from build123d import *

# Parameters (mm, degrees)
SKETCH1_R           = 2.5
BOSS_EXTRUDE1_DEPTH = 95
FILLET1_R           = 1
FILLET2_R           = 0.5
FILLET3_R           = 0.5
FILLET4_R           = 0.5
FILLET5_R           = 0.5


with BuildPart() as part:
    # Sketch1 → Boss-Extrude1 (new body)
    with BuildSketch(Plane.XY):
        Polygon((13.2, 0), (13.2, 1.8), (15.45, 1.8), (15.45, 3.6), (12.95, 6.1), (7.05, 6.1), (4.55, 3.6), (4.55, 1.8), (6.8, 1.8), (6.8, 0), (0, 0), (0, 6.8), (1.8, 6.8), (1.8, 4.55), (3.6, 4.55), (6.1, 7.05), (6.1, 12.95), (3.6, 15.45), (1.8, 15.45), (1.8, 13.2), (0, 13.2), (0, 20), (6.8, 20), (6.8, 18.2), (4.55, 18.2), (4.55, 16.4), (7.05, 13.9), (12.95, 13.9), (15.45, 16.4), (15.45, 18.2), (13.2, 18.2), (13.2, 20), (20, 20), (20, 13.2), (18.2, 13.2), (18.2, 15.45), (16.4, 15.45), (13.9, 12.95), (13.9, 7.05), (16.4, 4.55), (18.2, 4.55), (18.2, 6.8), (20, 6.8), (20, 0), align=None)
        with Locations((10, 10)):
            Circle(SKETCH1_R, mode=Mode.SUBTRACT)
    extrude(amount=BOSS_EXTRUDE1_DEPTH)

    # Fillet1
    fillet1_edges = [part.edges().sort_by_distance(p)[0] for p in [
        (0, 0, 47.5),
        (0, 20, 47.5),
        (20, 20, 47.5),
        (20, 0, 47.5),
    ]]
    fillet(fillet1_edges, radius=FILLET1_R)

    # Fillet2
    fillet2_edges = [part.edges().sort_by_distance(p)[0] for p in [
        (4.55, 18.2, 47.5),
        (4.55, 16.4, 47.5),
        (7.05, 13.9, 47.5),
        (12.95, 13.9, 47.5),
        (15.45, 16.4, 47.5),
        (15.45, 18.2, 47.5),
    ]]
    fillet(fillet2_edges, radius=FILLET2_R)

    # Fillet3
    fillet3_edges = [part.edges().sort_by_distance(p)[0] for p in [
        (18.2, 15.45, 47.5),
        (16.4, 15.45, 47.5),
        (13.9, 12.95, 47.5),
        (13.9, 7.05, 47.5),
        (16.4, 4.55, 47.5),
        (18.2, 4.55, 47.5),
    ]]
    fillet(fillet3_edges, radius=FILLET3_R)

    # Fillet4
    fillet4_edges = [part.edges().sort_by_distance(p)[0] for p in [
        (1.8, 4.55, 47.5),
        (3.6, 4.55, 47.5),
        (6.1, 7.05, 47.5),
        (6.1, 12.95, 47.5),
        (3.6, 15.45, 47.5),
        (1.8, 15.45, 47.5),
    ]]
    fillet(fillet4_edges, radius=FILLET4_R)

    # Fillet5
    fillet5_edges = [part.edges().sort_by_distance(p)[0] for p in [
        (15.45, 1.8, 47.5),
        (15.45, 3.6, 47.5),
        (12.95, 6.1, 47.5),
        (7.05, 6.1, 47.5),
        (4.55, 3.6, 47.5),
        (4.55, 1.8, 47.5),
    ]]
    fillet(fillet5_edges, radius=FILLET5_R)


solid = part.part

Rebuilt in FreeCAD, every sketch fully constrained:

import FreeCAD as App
import Part
import Sketcher
from FreeCAD import Vector


def edges_at(feature, points):
    """Names of the edges that pass closest to the given points."""
    edges = feature.Shape.Edges
    near = lambda p: min(range(len(edges)), key=lambda i: edges[i].distToShape(Part.Vertex(*p))[0])
    return sorted({f"Edge{near(p) + 1}" for p in points})

doc = App.newDocument("Part")
body = doc.addObject("PartDesign::Body", "Body")

# Sketch on XY plane
sketch1 = doc.addObject("Sketcher::SketchObject", "Sketch")
body.addObject(sketch1)
sketch1.AttachmentSupport = (doc.XY_Plane, [""])
sketch1.MapMode = "FlatFace"
sketch1.addGeometry([
    Part.LineSegment(Vector(13.2, 1.8, 0), Vector(13.2, 0, 0)),  # 0
    Part.LineSegment(Vector(13.2, 0, 0), Vector(20, 0, 0)),  # 1
    Part.LineSegment(Vector(20, 0, 0), Vector(20, 6.8, 0)),  # 2
    Part.LineSegment(Vector(20, 6.8, 0), Vector(18.2, 6.8, 0)),  # 3
    Part.LineSegment(Vector(18.2, 6.8, 0), Vector(18.2, 4.55, 0)),  # 4
    Part.LineSegment(Vector(18.2, 4.55, 0), Vector(16.4, 4.55, 0)),  # 5
    Part.LineSegment(Vector(16.4, 4.55, 0), Vector(13.9, 7.05, 0)),  # 6
    Part.LineSegment(Vector(13.9, 7.05, 0), Vector(13.9, 12.95, 0)),  # 7
    Part.LineSegment(Vector(13.9, 12.95, 0), Vector(16.4, 15.45, 0)),  # 8
    Part.LineSegment(Vector(16.4, 15.45, 0), Vector(18.2, 15.45, 0)),  # 9
    Part.LineSegment(Vector(18.2, 15.45, 0), Vector(18.2, 13.2, 0)),  # 10
    Part.LineSegment(Vector(18.2, 13.2, 0), Vector(20, 13.2, 0)),  # 11
    Part.LineSegment(Vector(20, 13.2, 0), Vector(20, 20, 0)),  # 12
    Part.LineSegment(Vector(20, 20, 0), Vector(13.2, 20, 0)),  # 13
    Part.LineSegment(Vector(13.2, 20, 0), Vector(13.2, 18.2, 0)),  # 14
    Part.LineSegment(Vector(13.2, 18.2, 0), Vector(15.45, 18.2, 0)),  # 15
    Part.LineSegment(Vector(15.45, 18.2, 0), Vector(15.45, 16.4, 0)),  # 16
    Part.LineSegment(Vector(15.45, 16.4, 0), Vector(12.95, 13.9, 0)),  # 17
    Part.LineSegment(Vector(12.95, 13.9, 0), Vector(7.05, 13.9, 0)),  # 18
    Part.LineSegment(Vector(7.05, 13.9, 0), Vector(4.55, 16.4, 0)),  # 19
    Part.LineSegment(Vector(4.55, 16.4, 0), Vector(4.55, 18.2, 0)),  # 20
    Part.LineSegment(Vector(4.55, 18.2, 0), Vector(6.8, 18.2, 0)),  # 21
    Part.LineSegment(Vector(6.8, 18.2, 0), Vector(6.8, 20, 0)),  # 22
    Part.LineSegment(Vector(6.8, 20, 0), Vector(0, 20, 0)),  # 23
    Part.LineSegment(Vector(0, 20, 0), Vector(0, 13.2, 0)),  # 24
    Part.LineSegment(Vector(0, 13.2, 0), Vector(1.8, 13.2, 0)),  # 25
    Part.LineSegment(Vector(1.8, 13.2, 0), Vector(1.8, 15.45, 0)),  # 26
    Part.LineSegment(Vector(1.8, 15.45, 0), Vector(3.6, 15.45, 0)),  # 27
    Part.LineSegment(Vector(3.6, 15.45, 0), Vector(6.1, 12.95, 0)),  # 28
    Part.LineSegment(Vector(6.1, 12.95, 0), Vector(6.1, 7.05, 0)),  # 29
    Part.LineSegment(Vector(6.1, 7.05, 0), Vector(3.6, 4.55, 0)),  # 30
    Part.LineSegment(Vector(3.6, 4.55, 0), Vector(1.8, 4.55, 0)),  # 31
    Part.LineSegment(Vector(1.8, 4.55, 0), Vector(1.8, 6.8, 0)),  # 32
    Part.LineSegment(Vector(1.8, 6.8, 0), Vector(0, 6.8, 0)),  # 33
    Part.LineSegment(Vector(0, 6.8, 0), Vector(0, 0, 0)),  # 34
    Part.LineSegment(Vector(0, 0, 0), Vector(6.8, 0, 0)),  # 35
    Part.LineSegment(Vector(6.8, 0, 0), Vector(6.8, 1.8, 0)),  # 36
    Part.LineSegment(Vector(6.8, 1.8, 0), Vector(4.55, 1.8, 0)),  # 37
    Part.LineSegment(Vector(4.55, 1.8, 0), Vector(4.55, 3.6, 0)),  # 38
    Part.LineSegment(Vector(4.55, 3.6, 0), Vector(7.05, 6.1, 0)),  # 39
    Part.LineSegment(Vector(7.05, 6.1, 0), Vector(12.95, 6.1, 0)),  # 40
    Part.LineSegment(Vector(12.95, 6.1, 0), Vector(15.45, 3.6, 0)),  # 41
    Part.LineSegment(Vector(15.45, 3.6, 0), Vector(15.45, 1.8, 0)),  # 42
    Part.LineSegment(Vector(15.45, 1.8, 0), Vector(13.2, 1.8, 0)),  # 43
    Part.Circle(Vector(10, 10, 0), Vector(0, 0, 1), 2.5),  # 44
], False)
sketch1.addConstraint([
    Sketcher.Constraint("Coincident", 0, 2, 1, 1),
    Sketcher.Constraint("Coincident", 1, 2, 2, 1),
    Sketcher.Constraint("Coincident", 2, 2, 3, 1),
    Sketcher.Constraint("Coincident", 3, 2, 4, 1),
    Sketcher.Constraint("Coincident", 4, 2, 5, 1),
    Sketcher.Constraint("Coincident", 5, 2, 6, 1),
    Sketcher.Constraint("Coincident", 6, 2, 7, 1),
    Sketcher.Constraint("Coincident", 7, 2, 8, 1),
    Sketcher.Constraint("Coincident", 8, 2, 9, 1),
    Sketcher.Constraint("Coincident", 9, 2, 10, 1),
    Sketcher.Constraint("Coincident", 10, 2, 11, 1),
    Sketcher.Constraint("Coincident", 11, 2, 12, 1),
    Sketcher.Constraint("Coincident", 12, 2, 13, 1),
    Sketcher.Constraint("Coincident", 13, 2, 14, 1),
    Sketcher.Constraint("Coincident", 14, 2, 15, 1),
    Sketcher.Constraint("Coincident", 15, 2, 16, 1),
    Sketcher.Constraint("Coincident", 16, 2, 17, 1),
    Sketcher.Constraint("Coincident", 17, 2, 18, 1),
    Sketcher.Constraint("Coincident", 18, 2, 19, 1),
    Sketcher.Constraint("Coincident", 19, 2, 20, 1),
    Sketcher.Constraint("Coincident", 20, 2, 21, 1),
    Sketcher.Constraint("Coincident", 21, 2, 22, 1),
    Sketcher.Constraint("Coincident", 22, 2, 23, 1),
    Sketcher.Constraint("Coincident", 23, 2, 24, 1),
    Sketcher.Constraint("Coincident", 24, 2, 25, 1),
    Sketcher.Constraint("Coincident", 25, 2, 26, 1),
    Sketcher.Constraint("Coincident", 26, 2, 27, 1),
    Sketcher.Constraint("Coincident", 27, 2, 28, 1),
    Sketcher.Constraint("Coincident", 28, 2, 29, 1),
    Sketcher.Constraint("Coincident", 29, 2, 30, 1),
    Sketcher.Constraint("Coincident", 30, 2, 31, 1),
    Sketcher.Constraint("Coincident", 31, 2, 32, 1),
    Sketcher.Constraint("Coincident", 32, 2, 33, 1),
    Sketcher.Constraint("Coincident", 33, 2, 34, 1),
    Sketcher.Constraint("Coincident", 34, 2, 35, 1),
    Sketcher.Constraint("Coincident", 35, 2, 36, 1),
    Sketcher.Constraint("Coincident", 36, 2, 37, 1),
    Sketcher.Constraint("Coincident", 37, 2, 38, 1),
    Sketcher.Constraint("Coincident", 38, 2, 39, 1),
    Sketcher.Constraint("Coincident", 39, 2, 40, 1),
    Sketcher.Constraint("Coincident", 40, 2, 41, 1),
    Sketcher.Constraint("Coincident", 41, 2, 42, 1),
    Sketcher.Constraint("Coincident", 42, 2, 43, 1),
    Sketcher.Constraint("Coincident", 43, 2, 0, 1),
    Sketcher.Constraint("Vertical", 0),
    Sketcher.Constraint("Horizontal", 1),
    Sketcher.Constraint("Vertical", 2),
    Sketcher.Constraint("Horizontal", 3),
    Sketcher.Constraint("Vertical", 4),
    Sketcher.Constraint("Horizontal", 5),
    Sketcher.Constraint("Vertical", 7),
    Sketcher.Constraint("Horizontal", 9),
    Sketcher.Constraint("Vertical", 10),
    Sketcher.Constraint("Horizontal", 11),
    Sketcher.Constraint("Vertical", 12),
    Sketcher.Constraint("Horizontal", 13),
    Sketcher.Constraint("Vertical", 14),
    Sketcher.Constraint("Horizontal", 15),
    Sketcher.Constraint("Vertical", 16),
    Sketcher.Constraint("Horizontal", 18),
    Sketcher.Constraint("Vertical", 20),
    Sketcher.Constraint("Horizontal", 21),
    Sketcher.Constraint("Vertical", 22),
    Sketcher.Constraint("Horizontal", 23),
    Sketcher.Constraint("Vertical", 24),
    Sketcher.Constraint("Horizontal", 25),
    Sketcher.Constraint("Vertical", 26),
    Sketcher.Constraint("Horizontal", 27),
    Sketcher.Constraint("Vertical", 29),
    Sketcher.Constraint("Horizontal", 31),
    Sketcher.Constraint("Vertical", 32),
    Sketcher.Constraint("Horizontal", 33),
    Sketcher.Constraint("Vertical", 34),
    Sketcher.Constraint("Horizontal", 35),
    Sketcher.Constraint("Vertical", 36),
    Sketcher.Constraint("Horizontal", 37),
    Sketcher.Constraint("Vertical", 38),
    Sketcher.Constraint("Horizontal", 40),
    Sketcher.Constraint("Vertical", 42),
    Sketcher.Constraint("Horizontal", 43),
    Sketcher.Constraint("Coincident", 34, 2, -1, 1),
    Sketcher.Constraint("PointOnObject", 0, 2, -1),
    Sketcher.Constraint("PointOnObject", 23, 2, -2),
    Sketcher.Constraint("Perpendicular", 6, 8),
    Sketcher.Constraint("Parallel", 8, 17),
    Sketcher.Constraint("Perpendicular", 17, 19),
    Sketcher.Constraint("Parallel", 19, 28),
    Sketcher.Constraint("Perpendicular", 28, 30),
    Sketcher.Constraint("Parallel", 30, 39),
    Sketcher.Constraint("Perpendicular", 39, 41),
    Sketcher.Constraint("Horizontal", 16, 2, 19, 2),
    Sketcher.Constraint("Horizontal", 15, 2, 20, 2),
    Sketcher.Constraint("Horizontal", 13, 2, 22, 2),
    Sketcher.Constraint("Horizontal", 11, 2, 24, 2),
    Sketcher.Constraint("Horizontal", 9, 2, 26, 2),
    Sketcher.Constraint("Horizontal", 7, 2, 28, 2),
    Sketcher.Constraint("Horizontal", 6, 2, 29, 2),
    Sketcher.Constraint("Horizontal", 5, 2, 30, 2),
    Sketcher.Constraint("Horizontal", 3, 2, 32, 2),
    Sketcher.Constraint("Horizontal", 38, 2, 41, 2),
    Sketcher.Constraint("Horizontal", 37, 2, 42, 2),
    Sketcher.Constraint("Vertical", 5, 2, 8, 2),
    Sketcher.Constraint("Vertical", 4, 2, 9, 2),
    Sketcher.Constraint("Vertical", 2, 2, 11, 2),
    Sketcher.Constraint("Vertical", 0, 2, 13, 2),
    Sketcher.Constraint("Vertical", 27, 2, 30, 2),
    Sketcher.Constraint("Vertical", 26, 2, 31, 2),
    Sketcher.Constraint("Vertical", 22, 2, 35, 2),
    Sketcher.Constraint("Vertical", 20, 2, 37, 2),
    Sketcher.Constraint("Vertical", 18, 2, 39, 2),
    Sketcher.Constraint("Vertical", 17, 2, 40, 2),
    Sketcher.Constraint("Equal", 3, 5),
    Sketcher.Constraint("Equal", 15, 21),
    Sketcher.Constraint("Equal", 13, 23),
    Sketcher.Constraint("Equal", 11, 25),
    Sketcher.Constraint("Equal", 25, 27),
    Sketcher.Constraint("Equal", 33, 0),
    Sketcher.Constraint("Equal", 35, 2),
    Sketcher.Constraint("Equal", 43, 4),
    Sketcher.Constraint("Equal", 40, 7),
    Sketcher.Constraint("Equal", 4, 10),
    Sketcher.Constraint("Equal", 2, 12),
    Sketcher.Constraint("Equal", 0, 14),
    Sketcher.Constraint("Equal", 14, 16),
    Sketcher.Constraint("Equal", 36, 38),
    Sketcher.Constraint("Equal", 8, 17),
    Sketcher.Constraint("Diameter", 44, 5.0),
    Sketcher.Constraint("DistanceX", 1, 1, 1, 2, 6.8),
    Sketcher.Constraint("DistanceX", 3, 2, 3, 1, 1.8),
    Sketcher.Constraint("DistanceX", 18, 2, 18, 1, 5.9),
    Sketcher.Constraint("DistanceX", -1, 1, 44, 3, 10.0),
    Sketcher.Constraint("DistanceY", -1, 1, 44, 3, 10.0),
    Sketcher.Constraint("DistanceX", -1, 1, 1, 2, 20.0),
    Sketcher.Constraint("DistanceX", 15, 1, 15, 2, 2.25),
])
pad1 = doc.addObject("PartDesign::Pad", "Pad")
body.addObject(pad1)
pad1.Profile = sketch1
pad1.Length = 95
doc.recompute()

fillet = doc.addObject("PartDesign::Fillet", "Fillet")
body.addObject(fillet)
fillet.Base = (pad1, edges_at(pad1, [
    (0, 0, 47.5),
    (0, 20, 47.5),
    (20, 20, 47.5),
    (20, 0, 47.5),
]))
fillet.Radius = 1
doc.recompute()

fillet2 = doc.addObject("PartDesign::Fillet", "Fillet001")
body.addObject(fillet2)
fillet2.Base = (fillet, edges_at(fillet, [
    (4.55, 18.2, 47.5),
    (4.55, 16.4, 47.5),
    (7.05, 13.9, 47.5),
    (12.95, 13.9, 47.5),
    (15.45, 16.4, 47.5),
    (15.45, 18.2, 47.5),
]))
fillet2.Radius = 0.5
doc.recompute()

fillet3 = doc.addObject("PartDesign::Fillet", "Fillet002")
body.addObject(fillet3)
fillet3.Base = (fillet2, edges_at(fillet2, [
    (18.2, 15.45, 47.5),
    (16.4, 15.45, 47.5),
    (13.9, 12.95, 47.5),
    (13.9, 7.05, 47.5),
    (16.4, 4.55, 47.5),
    (18.2, 4.55, 47.5),
]))
fillet3.Radius = 0.5
doc.recompute()

fillet4 = doc.addObject("PartDesign::Fillet", "Fillet003")
body.addObject(fillet4)
fillet4.Base = (fillet3, edges_at(fillet3, [
    (1.8, 4.55, 47.5),
    (3.6, 4.55, 47.5),
    (6.1, 7.05, 47.5),
    (6.1, 12.95, 47.5),
    (3.6, 15.45, 47.5),
    (1.8, 15.45, 47.5),
]))
fillet4.Radius = 0.5
doc.recompute()

fillet5 = doc.addObject("PartDesign::Fillet", "Fillet004")
body.addObject(fillet5)
fillet5.Base = (fillet4, edges_at(fillet4, [
    (15.45, 1.8, 47.5),
    (15.45, 3.6, 47.5),
    (12.95, 6.1, 47.5),
    (7.05, 6.1, 47.5),
    (4.55, 3.6, 47.5),
    (4.55, 1.8, 47.5),
]))
fillet5.Radius = 0.5

doc.recompute()
